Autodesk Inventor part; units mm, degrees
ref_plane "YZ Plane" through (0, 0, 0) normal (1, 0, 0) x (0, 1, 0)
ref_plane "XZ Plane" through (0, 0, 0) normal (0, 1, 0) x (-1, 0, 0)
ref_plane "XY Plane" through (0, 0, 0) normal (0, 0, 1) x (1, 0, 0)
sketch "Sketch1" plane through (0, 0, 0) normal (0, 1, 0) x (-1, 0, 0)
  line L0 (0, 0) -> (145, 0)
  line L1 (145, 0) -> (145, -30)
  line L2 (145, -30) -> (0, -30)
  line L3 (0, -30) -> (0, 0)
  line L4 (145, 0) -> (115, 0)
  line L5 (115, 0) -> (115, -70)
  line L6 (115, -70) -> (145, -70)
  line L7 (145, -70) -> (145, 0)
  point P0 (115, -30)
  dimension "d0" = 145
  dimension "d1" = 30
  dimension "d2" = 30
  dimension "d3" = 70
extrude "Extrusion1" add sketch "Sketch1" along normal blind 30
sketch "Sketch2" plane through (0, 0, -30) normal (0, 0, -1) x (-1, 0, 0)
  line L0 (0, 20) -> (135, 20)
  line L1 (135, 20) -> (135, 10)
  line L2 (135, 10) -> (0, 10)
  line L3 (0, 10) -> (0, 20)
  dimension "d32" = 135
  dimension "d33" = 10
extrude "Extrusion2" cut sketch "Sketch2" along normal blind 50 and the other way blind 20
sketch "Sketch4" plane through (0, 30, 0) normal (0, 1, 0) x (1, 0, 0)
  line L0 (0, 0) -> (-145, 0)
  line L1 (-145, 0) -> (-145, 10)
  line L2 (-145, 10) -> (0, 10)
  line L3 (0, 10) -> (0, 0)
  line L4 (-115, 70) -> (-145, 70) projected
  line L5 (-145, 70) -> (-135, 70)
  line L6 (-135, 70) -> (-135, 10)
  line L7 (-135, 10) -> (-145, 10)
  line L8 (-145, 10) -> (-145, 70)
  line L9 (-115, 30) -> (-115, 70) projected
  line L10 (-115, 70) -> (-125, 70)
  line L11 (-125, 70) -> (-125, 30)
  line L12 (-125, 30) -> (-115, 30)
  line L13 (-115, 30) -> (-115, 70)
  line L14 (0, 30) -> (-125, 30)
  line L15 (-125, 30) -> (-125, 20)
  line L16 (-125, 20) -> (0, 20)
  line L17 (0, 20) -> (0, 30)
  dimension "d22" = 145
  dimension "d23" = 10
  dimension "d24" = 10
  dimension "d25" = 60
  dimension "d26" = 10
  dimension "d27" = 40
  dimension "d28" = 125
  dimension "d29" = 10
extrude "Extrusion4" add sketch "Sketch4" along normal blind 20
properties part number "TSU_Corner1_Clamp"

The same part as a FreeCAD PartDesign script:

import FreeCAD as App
import Part
import Sketcher
Q = App.Units.Quantity


def add_polygon(sketch, points):
    """Adds a closed chain of lines whose ends are joined by coincident constraints."""
    first, n = sketch.GeometryCount, len(points)
    for a, b in zip(points, points[1:] + points[:1]):
        sketch.addGeometry(Part.LineSegment(App.Vector(*a, 0), App.Vector(*b, 0)), False)
    for i in range(n):
        sketch.addConstraint(Sketcher.Constraint("Coincident", first + i, 2, first + (i + 1) % n, 1))

doc = App.newDocument("Part")
body = doc.addObject("PartDesign::Body", "Body")

sketch1 = doc.addObject("Sketcher::SketchObject", "Sketch")
body.addObject(sketch1)
sketch1.AttachmentSupport = (doc.XZ_Plane, [""])
sketch1.MapMode = "FlatFace"
add_polygon(sketch1, [(0, 0), (0, -30), (-115, -30), (-115, -70), (-145, -70), (-145, 0)])
sketch1.addConstraint(Sketcher.Constraint("Vertical", 0))
sketch1.addConstraint(Sketcher.Constraint("Horizontal", 1))
sketch1.addConstraint(Sketcher.Constraint("Vertical", 2))
sketch1.addConstraint(Sketcher.Constraint("Horizontal", 3))
sketch1.addConstraint(Sketcher.Constraint("Vertical", 4))
sketch1.addConstraint(Sketcher.Constraint("Horizontal", 5))
sketch1.addConstraint(Sketcher.Constraint("Coincident", 5, 2, -1, 1))
sketch1.addConstraint(Sketcher.Constraint("Equal", 3, 0))
sketch1.addConstraint(Sketcher.Constraint("DistanceX", 3, 2, 3, 1, Q("30 mm")))
sketch1.addConstraint(Sketcher.Constraint("DistanceX", 5, 1, 5, 2, Q("145 mm")))
sketch1.addConstraint(Sketcher.Constraint("DistanceY", 4, 1, 4, 2, Q("70 mm")))
pad1 = doc.addObject("PartDesign::Pad", "Pad")
body.addObject(pad1)
pad1.Profile = sketch1
pad1.Length = 30
pad1.Reversed = True

sketch2 = doc.addObject("Sketcher::SketchObject", "Sketch001")
body.addObject(sketch2)
sketch2.AttachmentSupport = (doc.XY_Plane, [""])
sketch2.MapMode = "FlatFace"
sketch2.AttachmentOffset = App.Placement(App.Vector(0, 0, -30), App.Rotation())
add_polygon(sketch2, [(-135, 20), (0, 20), (0, 10), (-135, 10)])
sketch2.addConstraint(Sketcher.Constraint("Horizontal", 0))
sketch2.addConstraint(Sketcher.Constraint("Vertical", 1))
sketch2.addConstraint(Sketcher.Constraint("Horizontal", 2))
sketch2.addConstraint(Sketcher.Constraint("Vertical", 3))
sketch2.addConstraint(Sketcher.Constraint("PointOnObject", 0, 2, -2))
sketch2.addConstraint(Sketcher.Constraint("DistanceX", 0, 1, 0, 2, Q("135 mm")))
sketch2.addConstraint(Sketcher.Constraint("DistanceY", 1, 2, 1, 1, Q("10 mm")))
sketch2.addConstraint(Sketcher.Constraint("DistanceY", -1, 1, 1, 2, Q("10 mm")))
pocket1 = doc.addObject("PartDesign::Pocket", "Pocket")
body.addObject(pocket1)
pocket1.Profile = sketch2
pocket1.Type = "TwoLengths"
pocket1.Length = 50
pocket1.Length2 = 20

sketch3 = doc.addObject("Sketcher::SketchObject", "Sketch002")
body.addObject(sketch3)
sketch3.AttachmentSupport = (doc.XZ_Plane, [""])
sketch3.MapMode = "FlatFace"
sketch3.AttachmentOffset = App.Placement(App.Vector(0, 0, -30), App.Rotation())
add_polygon(sketch3, [(-115, -70), (-125, -70), (-125, -20), (0, -20), (0, -30), (-115, -30)])
add_polygon(sketch3, [(-145, 0), (0, 0), (0, -10), (-135, -10), (-135, -70), (-145, -70)])
sketch3.addConstraint(Sketcher.Constraint("Horizontal", 0))
sketch3.addConstraint(Sketcher.Constraint("Vertical", 1))
sketch3.addConstraint(Sketcher.Constraint("Horizontal", 2))
sketch3.addConstraint(Sketcher.Constraint("Vertical", 3))
sketch3.addConstraint(Sketcher.Constraint("Horizontal", 4))
sketch3.addConstraint(Sketcher.Constraint("Vertical", 5))
sketch3.addConstraint(Sketcher.Constraint("Horizontal", 6))
sketch3.addConstraint(Sketcher.Constraint("Vertical", 7))
sketch3.addConstraint(Sketcher.Constraint("Horizontal", 8))
sketch3.addConstraint(Sketcher.Constraint("Vertical", 9))
sketch3.addConstraint(Sketcher.Constraint("Horizontal", 10))
sketch3.addConstraint(Sketcher.Constraint("Vertical", 11))
sketch3.addConstraint(Sketcher.Constraint("Coincident", 6, 2, -1, 1))
sketch3.addConstraint(Sketcher.Constraint("PointOnObject", 2, 2, -2))
sketch3.addConstraint(Sketcher.Constraint("Horizontal", 5, 2, 9, 2))
sketch3.addConstraint(Sketcher.Constraint("Equal", 0, 10))
sketch3.addConstraint(Sketcher.Constraint("Equal", 10, 3))
sketch3.addConstraint(Sketcher.Constraint("Equal", 3, 7))
sketch3.addConstraint(Sketcher.Constraint("DistanceX", 0, 2, 0, 1, Q("10 mm")))
sketch3.addConstraint(Sketcher.Constraint("DistanceX", 2, 1, 2, 2, Q("125 mm")))
sketch3.addConstraint(Sketcher.Constraint("DistanceX", 6, 1, 6, 2, Q("145 mm")))
sketch3.addConstraint(Sketcher.Constraint("DistanceY", 5, 2, 5, 1, Q("40 mm")))
sketch3.addConstraint(Sketcher.Constraint("DistanceY", 9, 2, 9, 1, Q("60 mm")))
pad2 = doc.addObject("PartDesign::Pad", "Pad001")
body.addObject(pad2)
pad2.Profile = sketch3
pad2.Length = 20
pad2.Reversed = True

doc.recompute()
